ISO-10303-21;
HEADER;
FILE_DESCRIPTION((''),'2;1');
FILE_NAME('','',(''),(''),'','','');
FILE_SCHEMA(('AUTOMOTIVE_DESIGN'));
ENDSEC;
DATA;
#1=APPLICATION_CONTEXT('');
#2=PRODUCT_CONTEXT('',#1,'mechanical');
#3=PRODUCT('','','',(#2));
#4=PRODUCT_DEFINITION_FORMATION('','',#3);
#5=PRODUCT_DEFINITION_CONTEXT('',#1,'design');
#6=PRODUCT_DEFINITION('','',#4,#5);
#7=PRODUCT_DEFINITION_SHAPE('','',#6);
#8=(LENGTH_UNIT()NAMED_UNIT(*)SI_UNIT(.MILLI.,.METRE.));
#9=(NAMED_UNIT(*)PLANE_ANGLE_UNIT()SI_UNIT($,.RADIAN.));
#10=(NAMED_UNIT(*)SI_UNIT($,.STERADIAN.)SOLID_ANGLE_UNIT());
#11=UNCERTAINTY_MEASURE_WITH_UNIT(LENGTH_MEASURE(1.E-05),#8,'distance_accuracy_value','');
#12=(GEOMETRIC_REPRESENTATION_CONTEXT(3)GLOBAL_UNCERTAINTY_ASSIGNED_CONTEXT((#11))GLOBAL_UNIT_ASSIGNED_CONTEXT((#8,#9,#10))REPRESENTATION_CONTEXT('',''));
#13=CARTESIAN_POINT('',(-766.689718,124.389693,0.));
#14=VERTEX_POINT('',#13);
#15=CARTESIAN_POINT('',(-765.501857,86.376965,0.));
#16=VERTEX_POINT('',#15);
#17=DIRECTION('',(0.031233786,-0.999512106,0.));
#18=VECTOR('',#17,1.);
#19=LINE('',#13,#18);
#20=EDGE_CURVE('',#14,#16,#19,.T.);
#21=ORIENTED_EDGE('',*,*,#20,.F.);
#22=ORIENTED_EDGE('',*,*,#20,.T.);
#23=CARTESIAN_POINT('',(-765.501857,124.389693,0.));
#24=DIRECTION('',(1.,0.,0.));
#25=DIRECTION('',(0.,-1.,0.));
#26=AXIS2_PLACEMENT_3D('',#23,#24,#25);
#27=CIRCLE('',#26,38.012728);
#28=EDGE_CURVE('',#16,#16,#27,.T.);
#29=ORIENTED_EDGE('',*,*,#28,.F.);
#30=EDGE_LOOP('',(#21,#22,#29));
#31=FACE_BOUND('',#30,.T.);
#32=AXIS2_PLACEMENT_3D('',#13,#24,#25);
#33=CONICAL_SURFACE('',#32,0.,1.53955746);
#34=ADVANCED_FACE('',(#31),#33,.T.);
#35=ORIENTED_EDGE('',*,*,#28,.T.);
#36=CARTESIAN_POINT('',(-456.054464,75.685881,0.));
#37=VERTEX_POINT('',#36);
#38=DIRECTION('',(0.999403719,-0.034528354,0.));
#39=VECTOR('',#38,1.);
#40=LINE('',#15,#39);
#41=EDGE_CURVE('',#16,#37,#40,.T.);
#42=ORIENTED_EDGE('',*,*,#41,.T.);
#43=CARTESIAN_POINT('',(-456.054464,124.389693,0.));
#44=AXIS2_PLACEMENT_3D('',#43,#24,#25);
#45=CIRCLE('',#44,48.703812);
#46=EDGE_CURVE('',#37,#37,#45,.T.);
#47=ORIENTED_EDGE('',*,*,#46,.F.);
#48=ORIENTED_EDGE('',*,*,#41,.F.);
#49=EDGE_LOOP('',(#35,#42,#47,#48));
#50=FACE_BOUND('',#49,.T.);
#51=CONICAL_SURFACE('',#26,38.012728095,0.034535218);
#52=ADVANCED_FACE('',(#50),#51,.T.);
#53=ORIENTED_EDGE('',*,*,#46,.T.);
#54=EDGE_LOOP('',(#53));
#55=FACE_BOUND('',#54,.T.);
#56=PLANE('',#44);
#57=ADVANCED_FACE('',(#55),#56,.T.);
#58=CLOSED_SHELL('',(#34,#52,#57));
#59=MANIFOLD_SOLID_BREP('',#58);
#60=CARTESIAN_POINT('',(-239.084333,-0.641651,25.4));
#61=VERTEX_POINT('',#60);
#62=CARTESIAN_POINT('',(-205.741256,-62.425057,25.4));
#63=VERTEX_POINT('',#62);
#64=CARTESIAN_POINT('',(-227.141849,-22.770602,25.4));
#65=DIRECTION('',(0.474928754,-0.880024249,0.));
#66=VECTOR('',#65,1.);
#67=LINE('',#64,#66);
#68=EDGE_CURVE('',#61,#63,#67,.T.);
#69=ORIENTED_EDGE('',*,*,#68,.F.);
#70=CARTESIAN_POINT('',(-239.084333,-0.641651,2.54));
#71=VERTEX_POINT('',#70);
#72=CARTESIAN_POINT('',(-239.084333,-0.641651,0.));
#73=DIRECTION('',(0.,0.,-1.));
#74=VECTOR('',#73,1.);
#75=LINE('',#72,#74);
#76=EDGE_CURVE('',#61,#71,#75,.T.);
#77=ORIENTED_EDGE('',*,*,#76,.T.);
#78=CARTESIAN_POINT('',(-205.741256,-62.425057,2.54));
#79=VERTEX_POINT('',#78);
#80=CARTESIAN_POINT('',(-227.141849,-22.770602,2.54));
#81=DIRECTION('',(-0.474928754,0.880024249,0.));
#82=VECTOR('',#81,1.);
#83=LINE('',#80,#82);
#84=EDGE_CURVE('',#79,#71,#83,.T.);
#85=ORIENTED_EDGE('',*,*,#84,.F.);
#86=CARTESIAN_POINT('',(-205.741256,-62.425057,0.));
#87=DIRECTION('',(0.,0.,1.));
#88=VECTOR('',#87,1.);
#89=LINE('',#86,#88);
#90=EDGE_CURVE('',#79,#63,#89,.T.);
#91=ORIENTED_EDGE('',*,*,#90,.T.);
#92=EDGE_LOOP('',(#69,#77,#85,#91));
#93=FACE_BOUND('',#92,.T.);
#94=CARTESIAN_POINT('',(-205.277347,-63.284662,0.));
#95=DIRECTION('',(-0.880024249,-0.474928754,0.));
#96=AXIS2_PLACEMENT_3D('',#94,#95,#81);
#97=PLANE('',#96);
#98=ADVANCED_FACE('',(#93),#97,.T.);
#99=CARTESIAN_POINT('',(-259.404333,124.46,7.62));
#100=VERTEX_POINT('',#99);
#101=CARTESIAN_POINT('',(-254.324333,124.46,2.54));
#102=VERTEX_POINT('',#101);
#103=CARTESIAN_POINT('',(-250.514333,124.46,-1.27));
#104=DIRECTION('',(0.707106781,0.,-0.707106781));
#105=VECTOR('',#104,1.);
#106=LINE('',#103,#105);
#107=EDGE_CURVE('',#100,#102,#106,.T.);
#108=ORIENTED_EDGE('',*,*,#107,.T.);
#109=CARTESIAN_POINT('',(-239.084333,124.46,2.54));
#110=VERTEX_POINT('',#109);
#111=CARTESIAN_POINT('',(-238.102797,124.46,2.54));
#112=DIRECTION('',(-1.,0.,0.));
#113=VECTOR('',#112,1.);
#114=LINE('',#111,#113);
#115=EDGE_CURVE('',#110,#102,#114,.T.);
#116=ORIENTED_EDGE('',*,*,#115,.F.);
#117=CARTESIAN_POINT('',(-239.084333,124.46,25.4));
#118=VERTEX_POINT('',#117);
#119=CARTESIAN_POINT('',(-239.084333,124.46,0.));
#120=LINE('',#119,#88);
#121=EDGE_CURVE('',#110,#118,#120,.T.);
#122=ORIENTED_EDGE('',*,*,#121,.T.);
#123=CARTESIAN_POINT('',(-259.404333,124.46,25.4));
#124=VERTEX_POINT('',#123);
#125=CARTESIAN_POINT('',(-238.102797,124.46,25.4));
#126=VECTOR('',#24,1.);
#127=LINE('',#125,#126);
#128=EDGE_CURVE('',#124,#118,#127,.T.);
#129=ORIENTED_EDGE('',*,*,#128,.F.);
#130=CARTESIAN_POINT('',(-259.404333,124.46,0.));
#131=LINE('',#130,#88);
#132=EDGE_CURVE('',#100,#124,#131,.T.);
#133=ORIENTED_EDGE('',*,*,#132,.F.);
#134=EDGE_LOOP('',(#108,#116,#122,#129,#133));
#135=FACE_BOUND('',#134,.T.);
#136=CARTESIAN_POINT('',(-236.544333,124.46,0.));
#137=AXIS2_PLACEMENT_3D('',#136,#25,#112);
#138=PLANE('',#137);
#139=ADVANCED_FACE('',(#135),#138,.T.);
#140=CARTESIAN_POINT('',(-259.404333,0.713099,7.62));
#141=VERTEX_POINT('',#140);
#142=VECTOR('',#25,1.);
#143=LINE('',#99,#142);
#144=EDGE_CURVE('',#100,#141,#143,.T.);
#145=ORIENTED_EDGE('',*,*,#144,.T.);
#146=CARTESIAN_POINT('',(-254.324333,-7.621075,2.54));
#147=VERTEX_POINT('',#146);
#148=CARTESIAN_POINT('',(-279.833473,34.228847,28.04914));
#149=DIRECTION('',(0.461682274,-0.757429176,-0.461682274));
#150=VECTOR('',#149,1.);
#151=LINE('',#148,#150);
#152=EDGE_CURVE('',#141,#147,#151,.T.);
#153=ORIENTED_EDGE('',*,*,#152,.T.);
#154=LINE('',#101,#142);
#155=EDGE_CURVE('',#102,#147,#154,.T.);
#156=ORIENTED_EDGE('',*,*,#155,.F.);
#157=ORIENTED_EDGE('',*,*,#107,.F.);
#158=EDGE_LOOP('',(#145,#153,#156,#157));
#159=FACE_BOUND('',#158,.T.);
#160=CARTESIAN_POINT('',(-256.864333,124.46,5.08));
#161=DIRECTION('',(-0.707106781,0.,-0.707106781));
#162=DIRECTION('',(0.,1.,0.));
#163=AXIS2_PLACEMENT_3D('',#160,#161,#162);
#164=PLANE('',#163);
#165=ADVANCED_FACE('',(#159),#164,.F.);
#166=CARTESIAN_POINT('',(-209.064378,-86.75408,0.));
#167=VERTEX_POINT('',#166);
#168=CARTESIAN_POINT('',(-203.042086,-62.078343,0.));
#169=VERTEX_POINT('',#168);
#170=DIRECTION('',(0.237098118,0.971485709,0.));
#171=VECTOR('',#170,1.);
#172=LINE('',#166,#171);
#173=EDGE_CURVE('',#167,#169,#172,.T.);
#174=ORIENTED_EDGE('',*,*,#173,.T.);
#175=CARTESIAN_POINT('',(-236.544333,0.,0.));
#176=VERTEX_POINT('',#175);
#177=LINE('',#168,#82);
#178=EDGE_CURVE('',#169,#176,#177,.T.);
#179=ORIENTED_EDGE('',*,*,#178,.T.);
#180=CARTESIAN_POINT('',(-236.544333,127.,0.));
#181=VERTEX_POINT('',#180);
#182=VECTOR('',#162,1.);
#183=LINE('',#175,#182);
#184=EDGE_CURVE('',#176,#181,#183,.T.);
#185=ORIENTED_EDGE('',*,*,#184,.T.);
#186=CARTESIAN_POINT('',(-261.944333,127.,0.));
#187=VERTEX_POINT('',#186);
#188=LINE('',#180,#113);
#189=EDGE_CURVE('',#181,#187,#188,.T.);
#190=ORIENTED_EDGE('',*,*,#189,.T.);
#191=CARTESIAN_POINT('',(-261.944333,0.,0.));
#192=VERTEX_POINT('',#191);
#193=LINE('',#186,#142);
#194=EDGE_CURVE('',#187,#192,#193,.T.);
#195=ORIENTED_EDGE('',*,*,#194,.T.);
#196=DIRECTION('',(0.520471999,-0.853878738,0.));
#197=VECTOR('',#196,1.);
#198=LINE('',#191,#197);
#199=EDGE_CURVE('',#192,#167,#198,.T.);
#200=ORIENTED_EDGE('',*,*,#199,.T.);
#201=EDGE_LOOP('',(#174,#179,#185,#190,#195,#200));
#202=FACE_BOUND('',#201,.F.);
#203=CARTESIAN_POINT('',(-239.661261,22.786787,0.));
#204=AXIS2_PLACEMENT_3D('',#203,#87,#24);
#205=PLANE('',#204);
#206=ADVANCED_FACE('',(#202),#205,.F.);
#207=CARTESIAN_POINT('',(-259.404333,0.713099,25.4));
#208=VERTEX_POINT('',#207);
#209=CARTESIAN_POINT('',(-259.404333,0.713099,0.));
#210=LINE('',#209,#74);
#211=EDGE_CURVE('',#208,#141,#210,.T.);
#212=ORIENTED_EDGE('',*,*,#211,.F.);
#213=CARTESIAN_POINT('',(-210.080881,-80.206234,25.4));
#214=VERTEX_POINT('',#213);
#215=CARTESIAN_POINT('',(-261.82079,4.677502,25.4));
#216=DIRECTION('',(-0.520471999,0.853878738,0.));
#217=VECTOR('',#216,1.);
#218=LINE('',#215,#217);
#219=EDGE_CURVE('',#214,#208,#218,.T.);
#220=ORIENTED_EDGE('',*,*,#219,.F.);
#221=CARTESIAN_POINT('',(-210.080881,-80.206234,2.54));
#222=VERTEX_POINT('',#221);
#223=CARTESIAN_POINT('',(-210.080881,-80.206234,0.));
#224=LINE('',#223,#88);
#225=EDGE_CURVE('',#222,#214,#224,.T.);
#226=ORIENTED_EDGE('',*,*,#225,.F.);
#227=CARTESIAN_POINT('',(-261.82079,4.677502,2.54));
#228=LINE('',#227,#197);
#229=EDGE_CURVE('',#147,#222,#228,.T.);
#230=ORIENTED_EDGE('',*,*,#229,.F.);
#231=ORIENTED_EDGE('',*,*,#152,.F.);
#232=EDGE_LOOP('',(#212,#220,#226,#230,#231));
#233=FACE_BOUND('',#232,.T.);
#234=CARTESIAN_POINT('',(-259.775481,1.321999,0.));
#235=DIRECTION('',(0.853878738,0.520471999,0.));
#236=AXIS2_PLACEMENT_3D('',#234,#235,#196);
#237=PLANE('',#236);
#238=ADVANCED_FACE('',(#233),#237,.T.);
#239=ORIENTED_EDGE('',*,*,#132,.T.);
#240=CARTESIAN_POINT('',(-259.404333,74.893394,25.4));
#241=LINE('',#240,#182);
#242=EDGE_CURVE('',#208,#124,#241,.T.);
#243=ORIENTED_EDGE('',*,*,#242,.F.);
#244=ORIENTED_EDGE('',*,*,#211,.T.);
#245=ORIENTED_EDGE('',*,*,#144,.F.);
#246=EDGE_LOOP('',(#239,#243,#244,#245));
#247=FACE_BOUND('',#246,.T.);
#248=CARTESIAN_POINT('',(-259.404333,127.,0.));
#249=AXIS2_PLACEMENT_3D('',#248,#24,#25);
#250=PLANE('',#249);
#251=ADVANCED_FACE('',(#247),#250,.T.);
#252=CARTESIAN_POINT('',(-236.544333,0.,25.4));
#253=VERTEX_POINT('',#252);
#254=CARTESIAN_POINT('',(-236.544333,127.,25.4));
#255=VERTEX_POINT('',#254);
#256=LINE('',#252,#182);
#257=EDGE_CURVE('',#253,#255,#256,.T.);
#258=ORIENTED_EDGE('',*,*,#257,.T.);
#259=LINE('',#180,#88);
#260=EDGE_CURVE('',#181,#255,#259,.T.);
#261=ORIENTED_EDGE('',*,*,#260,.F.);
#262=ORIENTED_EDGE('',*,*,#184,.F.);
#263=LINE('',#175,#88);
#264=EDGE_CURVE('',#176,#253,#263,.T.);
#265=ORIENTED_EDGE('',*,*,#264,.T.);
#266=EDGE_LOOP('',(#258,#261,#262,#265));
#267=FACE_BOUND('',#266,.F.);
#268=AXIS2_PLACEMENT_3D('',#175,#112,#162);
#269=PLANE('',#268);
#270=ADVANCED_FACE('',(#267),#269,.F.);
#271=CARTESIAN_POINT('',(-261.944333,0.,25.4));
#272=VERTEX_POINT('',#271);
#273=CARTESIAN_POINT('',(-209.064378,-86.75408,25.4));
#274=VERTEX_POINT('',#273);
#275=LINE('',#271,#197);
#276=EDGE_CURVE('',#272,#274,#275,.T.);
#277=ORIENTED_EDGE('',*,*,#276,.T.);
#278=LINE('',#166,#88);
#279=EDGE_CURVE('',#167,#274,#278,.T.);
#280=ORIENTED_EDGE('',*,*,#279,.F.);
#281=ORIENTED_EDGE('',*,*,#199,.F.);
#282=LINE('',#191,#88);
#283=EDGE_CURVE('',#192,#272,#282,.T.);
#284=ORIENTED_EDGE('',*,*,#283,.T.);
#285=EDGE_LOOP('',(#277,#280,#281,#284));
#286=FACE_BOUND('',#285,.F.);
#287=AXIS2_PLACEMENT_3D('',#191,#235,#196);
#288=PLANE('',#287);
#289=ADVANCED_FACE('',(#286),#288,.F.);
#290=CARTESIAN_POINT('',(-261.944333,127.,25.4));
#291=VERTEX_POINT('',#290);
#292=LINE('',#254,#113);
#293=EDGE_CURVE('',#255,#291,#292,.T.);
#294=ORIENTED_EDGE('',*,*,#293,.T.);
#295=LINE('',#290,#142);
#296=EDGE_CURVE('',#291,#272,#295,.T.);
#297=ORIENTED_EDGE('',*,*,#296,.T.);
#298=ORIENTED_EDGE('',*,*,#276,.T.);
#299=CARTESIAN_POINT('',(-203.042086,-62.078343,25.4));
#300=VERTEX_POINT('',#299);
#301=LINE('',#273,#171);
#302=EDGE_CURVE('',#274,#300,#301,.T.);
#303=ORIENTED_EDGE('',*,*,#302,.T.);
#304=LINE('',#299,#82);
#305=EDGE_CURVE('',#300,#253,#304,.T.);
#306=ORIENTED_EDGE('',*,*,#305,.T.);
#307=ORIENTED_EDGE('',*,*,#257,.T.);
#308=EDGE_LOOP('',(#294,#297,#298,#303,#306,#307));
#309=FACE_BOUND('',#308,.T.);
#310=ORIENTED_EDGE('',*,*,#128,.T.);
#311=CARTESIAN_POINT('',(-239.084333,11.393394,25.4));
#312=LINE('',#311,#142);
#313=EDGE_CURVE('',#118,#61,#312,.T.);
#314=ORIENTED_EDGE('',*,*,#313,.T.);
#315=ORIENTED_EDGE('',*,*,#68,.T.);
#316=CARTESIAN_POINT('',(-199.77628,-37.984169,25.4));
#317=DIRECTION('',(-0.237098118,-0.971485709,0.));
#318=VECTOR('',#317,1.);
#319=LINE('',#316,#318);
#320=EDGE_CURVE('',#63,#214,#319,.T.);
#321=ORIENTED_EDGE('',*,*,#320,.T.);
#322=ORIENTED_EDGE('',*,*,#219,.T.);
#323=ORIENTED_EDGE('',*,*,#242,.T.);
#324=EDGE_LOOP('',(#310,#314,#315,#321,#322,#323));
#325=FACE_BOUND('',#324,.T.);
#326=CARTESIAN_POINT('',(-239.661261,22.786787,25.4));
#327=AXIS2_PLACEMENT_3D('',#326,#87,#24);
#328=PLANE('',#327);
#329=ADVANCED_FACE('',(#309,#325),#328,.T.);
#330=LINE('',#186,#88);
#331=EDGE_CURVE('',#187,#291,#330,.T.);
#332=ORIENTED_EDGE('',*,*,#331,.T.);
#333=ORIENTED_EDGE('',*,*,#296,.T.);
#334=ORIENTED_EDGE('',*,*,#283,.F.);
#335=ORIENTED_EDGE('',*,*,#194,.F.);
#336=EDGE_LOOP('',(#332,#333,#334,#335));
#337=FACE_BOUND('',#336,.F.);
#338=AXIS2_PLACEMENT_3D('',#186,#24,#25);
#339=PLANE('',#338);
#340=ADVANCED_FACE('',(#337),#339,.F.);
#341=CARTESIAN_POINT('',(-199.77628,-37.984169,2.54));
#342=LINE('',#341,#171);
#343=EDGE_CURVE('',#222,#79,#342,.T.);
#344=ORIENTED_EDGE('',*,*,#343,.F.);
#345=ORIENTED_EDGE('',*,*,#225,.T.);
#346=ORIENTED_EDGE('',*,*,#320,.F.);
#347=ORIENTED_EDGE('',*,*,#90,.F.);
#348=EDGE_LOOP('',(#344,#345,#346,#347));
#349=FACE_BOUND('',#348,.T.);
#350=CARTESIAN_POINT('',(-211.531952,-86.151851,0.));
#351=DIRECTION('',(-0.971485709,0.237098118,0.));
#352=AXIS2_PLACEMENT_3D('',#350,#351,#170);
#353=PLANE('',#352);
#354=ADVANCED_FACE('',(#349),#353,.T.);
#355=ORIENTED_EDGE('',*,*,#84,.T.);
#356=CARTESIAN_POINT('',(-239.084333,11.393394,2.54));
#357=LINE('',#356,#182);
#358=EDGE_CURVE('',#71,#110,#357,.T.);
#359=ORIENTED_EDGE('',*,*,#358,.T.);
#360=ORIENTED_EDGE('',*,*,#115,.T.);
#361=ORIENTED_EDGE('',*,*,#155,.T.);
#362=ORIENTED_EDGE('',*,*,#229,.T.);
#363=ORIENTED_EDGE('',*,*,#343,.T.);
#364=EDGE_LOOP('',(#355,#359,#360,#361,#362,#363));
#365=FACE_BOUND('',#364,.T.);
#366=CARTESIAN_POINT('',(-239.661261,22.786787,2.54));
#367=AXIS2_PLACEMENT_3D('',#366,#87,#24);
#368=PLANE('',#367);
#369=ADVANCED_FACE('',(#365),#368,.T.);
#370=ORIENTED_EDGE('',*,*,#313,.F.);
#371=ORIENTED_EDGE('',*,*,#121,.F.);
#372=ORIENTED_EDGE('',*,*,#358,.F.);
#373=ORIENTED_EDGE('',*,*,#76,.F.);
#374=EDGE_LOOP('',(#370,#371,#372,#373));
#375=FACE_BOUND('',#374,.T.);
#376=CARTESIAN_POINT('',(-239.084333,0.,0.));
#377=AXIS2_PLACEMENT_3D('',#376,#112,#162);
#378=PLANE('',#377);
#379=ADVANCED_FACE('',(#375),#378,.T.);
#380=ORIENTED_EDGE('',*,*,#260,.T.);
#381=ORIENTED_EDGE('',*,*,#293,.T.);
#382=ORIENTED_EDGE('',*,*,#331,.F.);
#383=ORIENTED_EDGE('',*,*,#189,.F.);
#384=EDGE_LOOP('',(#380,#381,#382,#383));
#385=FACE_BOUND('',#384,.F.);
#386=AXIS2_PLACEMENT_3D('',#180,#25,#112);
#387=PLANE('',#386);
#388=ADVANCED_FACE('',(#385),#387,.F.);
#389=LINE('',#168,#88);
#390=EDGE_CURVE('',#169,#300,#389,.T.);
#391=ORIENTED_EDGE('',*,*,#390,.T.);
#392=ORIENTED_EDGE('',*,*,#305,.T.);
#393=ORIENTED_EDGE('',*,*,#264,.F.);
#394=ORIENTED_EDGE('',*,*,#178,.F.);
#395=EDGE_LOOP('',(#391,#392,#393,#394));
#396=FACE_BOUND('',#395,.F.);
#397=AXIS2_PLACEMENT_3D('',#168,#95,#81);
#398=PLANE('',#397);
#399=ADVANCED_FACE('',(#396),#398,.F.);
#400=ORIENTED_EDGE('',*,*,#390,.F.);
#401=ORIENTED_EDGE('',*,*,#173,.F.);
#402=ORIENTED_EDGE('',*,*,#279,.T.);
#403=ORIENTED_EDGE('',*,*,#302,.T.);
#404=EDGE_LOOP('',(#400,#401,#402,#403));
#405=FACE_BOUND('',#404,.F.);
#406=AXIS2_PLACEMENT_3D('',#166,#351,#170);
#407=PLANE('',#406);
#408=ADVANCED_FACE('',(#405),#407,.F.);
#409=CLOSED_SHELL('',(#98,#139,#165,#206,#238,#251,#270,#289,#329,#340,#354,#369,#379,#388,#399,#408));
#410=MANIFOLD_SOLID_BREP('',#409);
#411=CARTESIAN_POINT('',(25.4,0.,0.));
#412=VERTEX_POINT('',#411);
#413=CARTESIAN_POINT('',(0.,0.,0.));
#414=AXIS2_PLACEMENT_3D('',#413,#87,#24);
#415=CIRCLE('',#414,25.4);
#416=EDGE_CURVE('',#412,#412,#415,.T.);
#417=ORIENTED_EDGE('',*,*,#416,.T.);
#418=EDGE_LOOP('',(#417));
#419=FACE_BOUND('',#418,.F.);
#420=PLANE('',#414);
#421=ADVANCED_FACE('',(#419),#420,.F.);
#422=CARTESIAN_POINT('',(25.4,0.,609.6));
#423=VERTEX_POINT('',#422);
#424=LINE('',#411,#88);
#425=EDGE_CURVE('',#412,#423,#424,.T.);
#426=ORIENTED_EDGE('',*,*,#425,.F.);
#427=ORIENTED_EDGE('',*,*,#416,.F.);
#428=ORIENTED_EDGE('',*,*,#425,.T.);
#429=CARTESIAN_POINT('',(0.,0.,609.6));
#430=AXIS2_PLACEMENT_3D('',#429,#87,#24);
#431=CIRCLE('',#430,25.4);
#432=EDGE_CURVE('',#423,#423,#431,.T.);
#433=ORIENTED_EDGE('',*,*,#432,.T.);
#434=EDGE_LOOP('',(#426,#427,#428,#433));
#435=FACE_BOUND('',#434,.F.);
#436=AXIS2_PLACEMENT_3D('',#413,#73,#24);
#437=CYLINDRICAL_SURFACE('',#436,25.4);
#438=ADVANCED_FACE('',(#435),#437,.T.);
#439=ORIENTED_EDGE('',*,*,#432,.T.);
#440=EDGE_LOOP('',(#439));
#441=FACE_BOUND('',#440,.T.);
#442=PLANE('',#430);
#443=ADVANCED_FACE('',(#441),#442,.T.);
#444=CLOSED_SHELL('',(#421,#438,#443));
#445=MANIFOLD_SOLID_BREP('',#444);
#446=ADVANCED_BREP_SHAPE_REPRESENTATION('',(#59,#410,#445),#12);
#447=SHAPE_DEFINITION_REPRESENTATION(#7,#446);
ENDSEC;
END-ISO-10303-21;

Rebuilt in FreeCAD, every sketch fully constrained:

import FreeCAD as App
import Part
import Sketcher

V = App.Vector
Q = App.Units.Quantity


def edges_at(feature, points):
    """Names of the edges that pass closest to the given points."""
    edges = feature.Shape.Edges
    near = lambda p: min(range(len(edges)), key=lambda i: edges[i].distToShape(Part.Vertex(*p))[0])
    return sorted({f"Edge{near(p) + 1}" for p in points})


def faces_at(feature, points):
    """Names of the faces that lie closest to the given points."""
    faces = feature.Shape.Faces
    near = lambda p: min(range(len(faces)), key=lambda i: faces[i].distToShape(Part.Vertex(*p))[0])
    return sorted({f"Face{near(p) + 1}" for p in points})


def add_polygon(sketch, points):
    """Adds a closed chain of lines whose ends are joined by coincident constraints."""
    first, n = sketch.GeometryCount, len(points)
    for a, b in zip(points, points[1:] + points[:1]):
        sketch.addGeometry(Part.LineSegment(App.Vector(*a, 0), App.Vector(*b, 0)), False)
    for i in range(n):
        sketch.addConstraint(Sketcher.Constraint("Coincident", first + i, 2, first + (i + 1) % n, 1))

doc = App.newDocument("Part")
body = doc.addObject("PartDesign::Body", "Body")

# Sketch on XY plane
sketch1 = doc.addObject("Sketcher::SketchObject", "Sketch")
body.addObject(sketch1)
sketch1.AttachmentSupport = (doc.XY_Plane, [""])
sketch1.MapMode = "FlatFace"
sketch1.addGeometry(Part.Circle(V(0, 0, 0), V(0, 0, 1), 25), False)
sketch1.addConstraint([
    Sketcher.Constraint("Coincident", 0, 3, -1, 1),
    Sketcher.Constraint("Diameter", 0, Q("2 in")),
])
pad1 = doc.addObject("PartDesign::Pad", "Pad")
body.addObject(pad1)
pad1.Profile = sketch1
pad1.Length = Q("24 in")
body2 = doc.addObject("PartDesign::Body", "Body001")

# Sketch on XY plane
sketch2 = doc.addObject("Sketcher::SketchObject", "Sketch001")
body2.addObject(sketch2)
sketch2.AttachmentSupport = (doc.getObject("XY_Plane001"), [""])
sketch2.MapMode = "FlatFace"
add_polygon(sketch2, [(-262, 0), (-209, -87), (-203, -62), (-237, 0), (-237, 127), (-262, 127)])  # lines 0-5
sketch2.addConstraint([
    Sketcher.Constraint("Vertical", 3),
    Sketcher.Constraint("Horizontal", 4),
    Sketcher.Constraint("Vertical", 5),
    Sketcher.Constraint("PointOnObject", 2, 2, -1),
    Sketcher.Constraint("PointOnObject", 5, 2, -1),
    Sketcher.Constraint("DistanceX", 4, 2, 4, 1, Q("1 in")),
    Sketcher.Constraint("DistanceY", 3, 1, 3, 2, Q("5 in")),
    Sketcher.Constraint("Distance", 0, Q("4 in")),
    Sketcher.Constraint("Distance", 1, Q("1 in")),
    Sketcher.Constraint("DistanceY", 0, 2, -1, 1, Q("86.75408 mm")),
    Sketcher.Constraint("Distance", 2, Q("70.541627 mm")),
    Sketcher.Constraint("DistanceX", 0, 2, -1, 1, Q("209.064378 mm")),
])
pad2 = doc.addObject("PartDesign::Pad", "Pad001")
body2.addObject(pad2)
pad2.Profile = sketch2
pad2.Length = Q("1 in")
doc.recompute()

thickness = doc.addObject("PartDesign::Thickness", "Thickness")
body2.addObject(thickness)
thickness.Base = (pad2, faces_at(pad2, [(-244.274, -22.628, 25.4)]))
thickness.Value = Q("0.1 in")
thickness.Reversed = True
thickness.Join = "Intersection"
doc.recompute()

chamfer = doc.addObject("PartDesign::Chamfer", "Chamfer")
body2.addObject(chamfer)
chamfer.Base = (thickness, edges_at(thickness, [(-259.404, 62.587, 2.54)]))
chamfer.Size = Q("0.2 in")
body3 = doc.addObject("PartDesign::Body", "Body002")

# Sketch on XY plane
sketch3 = doc.addObject("Sketcher::SketchObject", "Sketch002")
body3.addObject(sketch3)
sketch3.AttachmentSupport = (doc.getObject("XY_Plane002"), [""])
sketch3.MapMode = "FlatFace"
add_polygon(sketch3, [(-456, 124), (-767, 124), (-766, 86), (-456, 76)])  # lines 0-3
sketch3.addGeometry(Part.LineSegment(V(-767, 124, 0), V(-456, 124, 0)), True)  # axis
sketch3.addConstraint([
    Sketcher.Constraint("Horizontal", 0),
    Sketcher.Constraint("Vertical", 3),
    Sketcher.Constraint("Horizontal", 4),
    Sketcher.Constraint("Coincident", 4, 1, 0, 2),
    Sketcher.Constraint("Vertical", 2, 2, 4, 2),
    Sketcher.Constraint("DistanceX", 2, 2, -1, 1, Q("17.9549002 in")),
    Sketcher.Constraint("Distance", 2, Q("309.632021 mm")),
    Sketcher.Constraint("DistanceX", 0, 2, 0, 1, Q("310.635254 mm")),
    Sketcher.Constraint("DistanceY", 3, 1, 3, 2, Q("48.703812 mm")),
    Sketcher.Constraint("DistanceY", -1, 1, 2, 2, Q("75.685881 mm")),
    Sketcher.Constraint("DistanceX", 0, 2, 1, 2, Q("1.187861 mm")),
])
revolution = doc.addObject("PartDesign::Revolution", "Revolution")
body3.addObject(revolution)
revolution.Profile = sketch3
revolution.ReferenceAxis = (sketch3, ["Axis0"])
revolution.Angle = 360

doc.recompute()
